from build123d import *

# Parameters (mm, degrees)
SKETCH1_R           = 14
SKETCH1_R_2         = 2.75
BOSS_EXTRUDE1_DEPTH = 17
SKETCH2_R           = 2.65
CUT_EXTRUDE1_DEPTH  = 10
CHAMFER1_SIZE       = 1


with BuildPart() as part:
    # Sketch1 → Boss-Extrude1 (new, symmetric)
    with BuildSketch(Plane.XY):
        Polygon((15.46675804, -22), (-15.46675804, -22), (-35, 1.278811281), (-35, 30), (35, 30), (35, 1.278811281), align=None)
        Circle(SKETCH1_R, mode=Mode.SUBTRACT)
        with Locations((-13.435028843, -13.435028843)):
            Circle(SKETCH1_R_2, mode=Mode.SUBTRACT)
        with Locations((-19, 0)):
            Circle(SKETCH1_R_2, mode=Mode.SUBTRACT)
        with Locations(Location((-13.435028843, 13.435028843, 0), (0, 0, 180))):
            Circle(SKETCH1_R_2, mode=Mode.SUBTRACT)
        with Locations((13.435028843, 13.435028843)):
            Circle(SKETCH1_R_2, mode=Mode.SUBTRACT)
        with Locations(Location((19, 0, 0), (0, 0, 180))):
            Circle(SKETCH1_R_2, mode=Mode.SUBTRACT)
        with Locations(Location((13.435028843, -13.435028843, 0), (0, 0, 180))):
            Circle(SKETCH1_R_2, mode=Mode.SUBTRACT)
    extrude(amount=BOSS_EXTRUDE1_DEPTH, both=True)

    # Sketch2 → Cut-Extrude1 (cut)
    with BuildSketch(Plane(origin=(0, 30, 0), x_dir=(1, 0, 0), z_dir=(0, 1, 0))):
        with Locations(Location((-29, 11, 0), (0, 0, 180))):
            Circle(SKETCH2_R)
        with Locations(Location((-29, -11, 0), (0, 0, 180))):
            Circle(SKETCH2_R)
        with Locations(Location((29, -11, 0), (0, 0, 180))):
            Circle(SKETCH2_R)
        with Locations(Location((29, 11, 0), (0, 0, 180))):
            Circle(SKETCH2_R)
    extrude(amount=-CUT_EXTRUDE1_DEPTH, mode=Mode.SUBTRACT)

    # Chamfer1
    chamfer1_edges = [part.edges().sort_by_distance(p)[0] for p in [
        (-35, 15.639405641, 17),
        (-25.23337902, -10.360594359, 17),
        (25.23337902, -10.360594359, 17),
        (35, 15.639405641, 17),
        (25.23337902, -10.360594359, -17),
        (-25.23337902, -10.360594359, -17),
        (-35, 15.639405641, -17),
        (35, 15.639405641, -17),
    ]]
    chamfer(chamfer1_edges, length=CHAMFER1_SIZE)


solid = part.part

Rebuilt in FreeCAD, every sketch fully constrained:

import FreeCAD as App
import Part
import Sketcher
from FreeCAD import Vector
Q = App.Units.Quantity


def edges_at(feature, points):
    """Names of the edges that pass closest to the given points."""
    edges = feature.Shape.Edges
    near = lambda p: min(range(len(edges)), key=lambda i: edges[i].distToShape(Part.Vertex(*p))[0])
    return sorted({f"Edge{near(p) + 1}" for p in points})

doc = App.newDocument("Part")
body = doc.addObject("PartDesign::Body", "Body")

# Sketch on XY plane
sketch1 = doc.addObject("Sketcher::SketchObject", "Sketch")
body.addObject(sketch1)
sketch1.AttachmentSupport = (doc.XY_Plane, [""])
sketch1.MapMode = "FlatFace"
sketch1.addGeometry([
    Part.LineSegment(Vector(-15.5, -22, 0), Vector(15.5, -22, 0)),  # 0
    Part.LineSegment(Vector(15.5, -22, 0), Vector(35, 1.3, 0)),  # 1
    Part.LineSegment(Vector(35, 1.3, 0), Vector(35, 30, 0)),  # 2
    Part.LineSegment(Vector(35, 30, 0), Vector(-35, 30, 0)),  # 3
    Part.LineSegment(Vector(-35, 30, 0), Vector(-35, 1.3, 0)),  # 4
    Part.LineSegment(Vector(-35, 1.3, 0), Vector(-15.5, -22, 0)),  # 5
    Part.Circle(Vector(13.4, -13.4, 0), Vector(0, 0, 1), 2.8),  # 6
    Part.Circle(Vector(-13.4, -13.4, 0), Vector(0, 0, 1), 2.8),  # 7
    Part.Circle(Vector(19, 0, 0), Vector(0, 0, 1), 2.8),  # 8
    Part.Circle(Vector(13.4, 13.4, 0), Vector(0, 0, 1), 2.8),  # 9
    Part.Circle(Vector(0, 0, 0), Vector(0, 0, 1), 14),  # 10
    Part.Circle(Vector(-19, 0, 0), Vector(0, 0, 1), 2.8),  # 11
    Part.Circle(Vector(-13.4, 13.4, 0), Vector(0, 0, 1), 2.8),  # 12
], False)
sketch1.addConstraint([
    Sketcher.Constraint("Coincident", 0, 2, 1, 1),
    Sketcher.Constraint("Coincident", 1, 2, 2, 1),
    Sketcher.Constraint("Coincident", 2, 2, 3, 1),
    Sketcher.Constraint("Coincident", 3, 2, 4, 1),
    Sketcher.Constraint("Coincident", 4, 2, 5, 1),
    Sketcher.Constraint("Coincident", 5, 2, 0, 1),
    Sketcher.Constraint("Horizontal", 0),
    Sketcher.Constraint("Vertical", 2),
    Sketcher.Constraint("Horizontal", 3),
    Sketcher.Constraint("Vertical", 4),
    Sketcher.Constraint("Coincident", 10, 3, -1, 1),
    Sketcher.Constraint("Equal", 6, 7),
    Sketcher.Constraint("Equal", 7, 8),
    Sketcher.Constraint("Equal", 8, 9),
    Sketcher.Constraint("Equal", 9, 11),
    Sketcher.Constraint("Equal", 11, 12),
    Sketcher.Constraint("Symmetric", 7, 3, 9, 3, -1, 1),
    Sketcher.Constraint("Symmetric", 8, 3, 11, 3, -1, 1),
    Sketcher.Constraint("Symmetric", 6, 3, 12, 3, -1, 1),
    Sketcher.Constraint("Symmetric", 6, 3, 7, 3, -2),
    Sketcher.Constraint("Symmetric", 1, 2, 4, 2, -2),
    Sketcher.Constraint("PointOnObject", 8, 3, -1),
    Sketcher.Constraint("Equal", 1, 5),
    Sketcher.Constraint("Diameter", 10, 28.0),
    Sketcher.Constraint("Diameter", 6, 5.5),
    Sketcher.Constraint("DistanceX", 3, 2, 3, 1, 70.0),
    Sketcher.Constraint("Angle", 1, Q("50 deg")),
    Sketcher.Constraint("DistanceX", -1, 1, 8, 3, 19.0),
    Sketcher.Constraint("DistanceY", 0, 2, -1, 1, 22.0),
    Sketcher.Constraint("DistanceY", -1, 1, 2, 2, 30.0),
    Sketcher.Constraint("DistanceY", 2, 1, 2, 2, 28.721189),
    Sketcher.Constraint("DistanceX", -1, 1, 6, 3, 13.435029),
    Sketcher.Constraint("DistanceY", 6, 3, -1, 1, 13.435029),
])
pad1 = doc.addObject("PartDesign::Pad", "Pad")
body.addObject(pad1)
pad1.Profile = sketch1
pad1.Length = 34
pad1.Midplane = True

# Sketch on XZ plane
sketch2 = doc.addObject("Sketcher::SketchObject", "Sketch001")
body.addObject(sketch2)
sketch2.AttachmentSupport = (doc.XZ_Plane, [""])
sketch2.MapMode = "FlatFace"
sketch2.AttachmentOffset = App.Placement(Vector(0, 0, -30), App.Rotation())
sketch2.addGeometry([
    Part.Circle(Vector(-29, -11, 0), Vector(0, 0, 1), 2.6),
    Part.Circle(Vector(-29, 11, 0), Vector(0, 0, 1), 2.6),
    Part.Circle(Vector(29, 11, 0), Vector(0, 0, 1), 2.6),
    Part.Circle(Vector(29, -11, 0), Vector(0, 0, 1), 2.6),
], False)
sketch2.addConstraint([
    Sketcher.Constraint("Equal", 0, 1),
    Sketcher.Constraint("Equal", 1, 2),
    Sketcher.Constraint("Equal", 2, 3),
    Sketcher.Constraint("Symmetric", 0, 3, 2, 3, -1, 1),
    Sketcher.Constraint("Symmetric", 1, 3, 3, 3, -1, 1),
    Sketcher.Constraint("Symmetric", 1, 3, 2, 3, -2),
    Sketcher.Constraint("Diameter", 0, 5.3),
    Sketcher.Constraint("DistanceX", 0, 3, -1, 1, 29.0),
    Sketcher.Constraint("DistanceY", 0, 3, -1, 1, 11.0),
])
pocket1 = doc.addObject("PartDesign::Pocket", "Pocket")
body.addObject(pocket1)
pocket1.Profile = sketch2
pocket1.Length = 10
pocket1.Reversed = True
doc.recompute()

chamfer = doc.addObject("PartDesign::Chamfer", "Chamfer")
body.addObject(chamfer)
chamfer.Base = (pocket1, edges_at(pocket1, [
    (-35, 15.639, 17),
    (-25.233, -10.361, 17),
    (25.233, -10.361, 17),
    (35, 15.639, 17),
    (25.233, -10.361, -17),
    (-25.233, -10.361, -17),
    (-35, 15.639, -17),
    (35, 15.639, -17),
]))
chamfer.Size = 1

doc.recompute()
